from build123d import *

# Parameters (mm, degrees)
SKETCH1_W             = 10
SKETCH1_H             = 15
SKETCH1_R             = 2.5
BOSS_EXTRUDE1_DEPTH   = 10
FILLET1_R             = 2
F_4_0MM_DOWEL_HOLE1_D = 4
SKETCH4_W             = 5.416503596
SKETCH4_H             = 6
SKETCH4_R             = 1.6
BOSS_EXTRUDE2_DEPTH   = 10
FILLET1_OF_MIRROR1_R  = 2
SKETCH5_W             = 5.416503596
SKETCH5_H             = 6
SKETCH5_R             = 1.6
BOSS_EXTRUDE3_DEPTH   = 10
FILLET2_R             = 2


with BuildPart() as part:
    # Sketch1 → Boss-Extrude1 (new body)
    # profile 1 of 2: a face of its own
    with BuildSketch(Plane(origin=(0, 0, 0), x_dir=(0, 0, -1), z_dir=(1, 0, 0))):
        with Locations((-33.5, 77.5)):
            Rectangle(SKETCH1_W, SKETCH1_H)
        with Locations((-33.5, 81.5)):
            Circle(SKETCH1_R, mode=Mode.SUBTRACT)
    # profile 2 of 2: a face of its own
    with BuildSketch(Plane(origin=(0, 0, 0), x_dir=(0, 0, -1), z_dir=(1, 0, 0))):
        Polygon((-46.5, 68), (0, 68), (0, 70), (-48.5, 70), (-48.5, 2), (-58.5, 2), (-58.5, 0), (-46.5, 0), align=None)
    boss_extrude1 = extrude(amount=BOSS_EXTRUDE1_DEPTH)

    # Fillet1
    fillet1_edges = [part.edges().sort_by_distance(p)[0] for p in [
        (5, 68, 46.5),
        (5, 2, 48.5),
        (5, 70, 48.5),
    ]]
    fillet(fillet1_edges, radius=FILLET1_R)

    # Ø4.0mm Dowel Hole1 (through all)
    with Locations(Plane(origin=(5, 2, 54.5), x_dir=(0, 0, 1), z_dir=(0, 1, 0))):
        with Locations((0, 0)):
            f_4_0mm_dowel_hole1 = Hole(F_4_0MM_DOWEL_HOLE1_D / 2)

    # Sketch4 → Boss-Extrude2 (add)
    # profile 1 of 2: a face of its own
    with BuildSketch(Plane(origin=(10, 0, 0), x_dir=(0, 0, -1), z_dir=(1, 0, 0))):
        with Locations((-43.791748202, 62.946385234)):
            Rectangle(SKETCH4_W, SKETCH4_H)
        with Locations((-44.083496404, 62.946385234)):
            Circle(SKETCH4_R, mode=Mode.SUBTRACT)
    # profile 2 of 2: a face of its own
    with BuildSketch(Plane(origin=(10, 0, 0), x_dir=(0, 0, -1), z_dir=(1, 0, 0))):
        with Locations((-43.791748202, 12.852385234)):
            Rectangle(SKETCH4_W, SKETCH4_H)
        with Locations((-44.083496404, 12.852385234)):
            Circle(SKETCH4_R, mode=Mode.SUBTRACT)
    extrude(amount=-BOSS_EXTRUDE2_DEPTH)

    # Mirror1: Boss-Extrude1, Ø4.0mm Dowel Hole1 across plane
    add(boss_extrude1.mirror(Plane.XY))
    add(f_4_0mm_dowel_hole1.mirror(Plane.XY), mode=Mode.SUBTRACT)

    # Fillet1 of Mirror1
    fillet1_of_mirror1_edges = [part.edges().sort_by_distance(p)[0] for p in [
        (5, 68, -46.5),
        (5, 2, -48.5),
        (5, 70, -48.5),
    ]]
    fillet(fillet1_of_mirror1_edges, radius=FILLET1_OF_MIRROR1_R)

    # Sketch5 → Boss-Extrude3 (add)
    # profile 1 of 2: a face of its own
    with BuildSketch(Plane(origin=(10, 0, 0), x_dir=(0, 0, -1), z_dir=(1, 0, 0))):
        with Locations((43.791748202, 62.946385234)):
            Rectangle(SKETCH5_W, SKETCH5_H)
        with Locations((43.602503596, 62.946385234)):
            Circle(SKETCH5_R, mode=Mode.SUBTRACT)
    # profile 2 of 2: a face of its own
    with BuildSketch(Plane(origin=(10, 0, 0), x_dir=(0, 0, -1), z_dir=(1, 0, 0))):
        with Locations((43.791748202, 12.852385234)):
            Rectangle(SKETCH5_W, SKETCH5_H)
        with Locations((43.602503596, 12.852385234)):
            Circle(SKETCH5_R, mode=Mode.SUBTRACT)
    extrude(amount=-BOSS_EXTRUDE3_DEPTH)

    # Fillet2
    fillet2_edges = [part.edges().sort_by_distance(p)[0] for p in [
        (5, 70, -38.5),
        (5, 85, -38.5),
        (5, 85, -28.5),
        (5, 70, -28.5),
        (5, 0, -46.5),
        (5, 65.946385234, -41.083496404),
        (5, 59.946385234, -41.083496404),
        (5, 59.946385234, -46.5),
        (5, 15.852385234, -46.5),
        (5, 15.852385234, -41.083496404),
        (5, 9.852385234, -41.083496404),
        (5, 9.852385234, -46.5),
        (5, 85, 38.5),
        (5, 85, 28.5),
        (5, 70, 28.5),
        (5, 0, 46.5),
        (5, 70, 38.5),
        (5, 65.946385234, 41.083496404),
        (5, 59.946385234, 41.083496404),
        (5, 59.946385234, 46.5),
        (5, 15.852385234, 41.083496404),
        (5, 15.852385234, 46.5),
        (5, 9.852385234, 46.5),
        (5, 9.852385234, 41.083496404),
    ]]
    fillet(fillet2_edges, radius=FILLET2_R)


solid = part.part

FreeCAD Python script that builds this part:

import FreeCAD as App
import Part
import Sketcher
Q = App.Units.Quantity


def edges_at(feature, points):
    """Names of the edges that pass closest to the given points."""
    edges = feature.Shape.Edges
    near = lambda p: min(range(len(edges)), key=lambda i: edges[i].distToShape(Part.Vertex(*p))[0])
    return sorted({f"Edge{near(p) + 1}" for p in points})

doc = App.newDocument("Part")
body = doc.addObject("PartDesign::Body", "Body")

# Sketch on YZ plane
sketch1 = body.newObject("Sketcher::SketchObject", "Sketch")
sketch1.AttachmentSupport = (doc.getObject("YZ_Plane"), [""])
sketch1.MapMode = "FlatFace"
sketch1.addGeometry([
    Part.LineSegment(App.Vector(85, 38.5, 0), App.Vector(70, 38.5, 0)),  # 0
    Part.LineSegment(App.Vector(70, 38.5, 0), App.Vector(70, 48.5, 0)),  # 1
    Part.LineSegment(App.Vector(70, 48.5, 0), App.Vector(2, 48.5, 0)),  # 2
    Part.LineSegment(App.Vector(2, 48.5, 0), App.Vector(2, 58.5, 0)),  # 3
    Part.LineSegment(App.Vector(2, 58.5, 0), App.Vector(0, 58.5, 0)),  # 4
    Part.LineSegment(App.Vector(0, 58.5, 0), App.Vector(0, 46.5, 0)),  # 5
    Part.LineSegment(App.Vector(0, 46.5, 0), App.Vector(68, 46.5, 0)),  # 6
    Part.LineSegment(App.Vector(68, 46.5, 0), App.Vector(68, 0, 0)),  # 7
    Part.LineSegment(App.Vector(68, 0, 0), App.Vector(70, 0, 0)),  # 8
    Part.LineSegment(App.Vector(70, 0, 0), App.Vector(70, 28.5, 0)),  # 9
    Part.LineSegment(App.Vector(70, 28.5, 0), App.Vector(85, 28.5, 0)),  # 10
    Part.LineSegment(App.Vector(85, 28.5, 0), App.Vector(85, 38.5, 0)),  # 11
    Part.Circle(App.Vector(81.5, 33.5, 0), App.Vector(0, 0, 1), 2.5),  # 12
], False)
sketch1.addConstraint([
    Sketcher.Constraint("Coincident", 0, 2, 1, 1),
    Sketcher.Constraint("Coincident", 1, 2, 2, 1),
    Sketcher.Constraint("Coincident", 2, 2, 3, 1),
    Sketcher.Constraint("Coincident", 3, 2, 4, 1),
    Sketcher.Constraint("Coincident", 4, 2, 5, 1),
    Sketcher.Constraint("Coincident", 5, 2, 6, 1),
    Sketcher.Constraint("Coincident", 6, 2, 7, 1),
    Sketcher.Constraint("Coincident", 7, 2, 8, 1),
    Sketcher.Constraint("Coincident", 8, 2, 9, 1),
    Sketcher.Constraint("Coincident", 9, 2, 10, 1),
    Sketcher.Constraint("Coincident", 10, 2, 11, 1),
    Sketcher.Constraint("Coincident", 11, 2, 0, 1),
    Sketcher.Constraint("Horizontal", 0),
    Sketcher.Constraint("Vertical", 1),
    Sketcher.Constraint("Horizontal", 2),
    Sketcher.Constraint("Vertical", 3),
    Sketcher.Constraint("Horizontal", 4),
    Sketcher.Constraint("Vertical", 5),
    Sketcher.Constraint("Horizontal", 6),
    Sketcher.Constraint("Vertical", 7),
    Sketcher.Constraint("Horizontal", 8),
    Sketcher.Constraint("Vertical", 9),
    Sketcher.Constraint("Horizontal", 10),
    Sketcher.Constraint("Vertical", 11),
    Sketcher.Constraint("PointOnObject", 4, 2, -2),
    Sketcher.Constraint("PointOnObject", 7, 2, -1),
    Sketcher.Constraint("Vertical", 1, 2, 8, 2),
    Sketcher.Constraint("Equal", 2, 6),
    Sketcher.Constraint("Equal", 1, 3),
    Sketcher.Constraint("Equal", 3, 11),
    Sketcher.Constraint("Diameter", 12, Q("5 mm")),
    Sketcher.Constraint("DistanceX", 0, 2, 0, 1, Q("15 mm")),
    Sketcher.Constraint("DistanceX", 2, 2, 2, 1, Q("68 mm")),
    Sketcher.Constraint("DistanceX", 4, 2, 4, 1, Q("2 mm")),
    Sketcher.Constraint("DistanceY", 1, 1, 1, 2, Q("10 mm")),
    Sketcher.Constraint("DistanceY", 5, 2, 5, 1, Q("12 mm")),
    Sketcher.Constraint("DistanceY", 7, 2, 7, 1, Q("46.5 mm")),
    Sketcher.Constraint("DistanceY", 12, 3, 0, 2, Q("5 mm")),
    Sketcher.Constraint("DistanceX", -1, 1, 12, 3, Q("81.5 mm")),
])
pad1 = body.newObject("PartDesign::Pad", "Pad")
pad1.Profile = sketch1
pad1.Length = 10
doc.recompute()

fillet = body.newObject("PartDesign::Fillet", "Fillet")
fillet.Base = (pad1, edges_at(pad1, [(5, 68, 46.5), (5, 2, 48.5), (5, 70, 48.5)]))
fillet.Radius = 2

# Sketch on XZ plane
sketch2 = body.newObject("Sketcher::SketchObject", "Sketch001")
sketch2.AttachmentSupport = (doc.getObject("XZ_Plane"), [""])
sketch2.MapMode = "FlatFace"
sketch2.AttachmentOffset = App.Placement(App.Vector(0, 0, -2), App.Rotation())
sketch2.addGeometry(Part.Circle(App.Vector(5, 54.5, 0), App.Vector(0, 0, 1), 2), False)
sketch2.addConstraint([
    Sketcher.Constraint("Diameter", 0, Q("4 mm")),
    Sketcher.Constraint("DistanceX", -1, 1, 0, 3, Q("5 mm")),
    Sketcher.Constraint("DistanceY", -1, 1, 0, 3, Q("54.5 mm")),
])
doc.recompute()
hole = body.newObject("PartDesign::Hole", "Hole")
hole.Profile = sketch2
hole.ThreadType = "None"
hole.Diameter = 4
hole.DepthType = "ThroughAll"
hole.Reversed = True

# Sketch on YZ plane
sketch3 = body.newObject("Sketcher::SketchObject", "Sketch002")
sketch3.AttachmentSupport = (doc.getObject("YZ_Plane"), [""])
sketch3.MapMode = "FlatFace"
sketch3.AttachmentOffset = App.Placement(App.Vector(0, 0, 10), App.Rotation())
sketch3.addGeometry([
    Part.LineSegment(App.Vector(65.9, 46.5, 0), App.Vector(59.9, 46.5, 0)),  # 0
    Part.LineSegment(App.Vector(59.9, 46.5, 0), App.Vector(59.9, 41.1, 0)),  # 1
    Part.LineSegment(App.Vector(59.9, 41.1, 0), App.Vector(65.9, 41.1, 0)),  # 2
    Part.LineSegment(App.Vector(65.9, 41.1, 0), App.Vector(65.9, 46.5, 0)),  # 3
    Part.Circle(App.Vector(62.9, 44.1, 0), App.Vector(0, 0, 1), 1.6),  # 4
    Part.LineSegment(App.Vector(15.9, 46.5, 0), App.Vector(9.9, 46.5, 0)),  # 5
    Part.LineSegment(App.Vector(9.9, 46.5, 0), App.Vector(9.9, 41.1, 0)),  # 6
    Part.LineSegment(App.Vector(9.9, 41.1, 0), App.Vector(15.9, 41.1, 0)),  # 7
    Part.LineSegment(App.Vector(15.9, 41.1, 0), App.Vector(15.9, 46.5, 0)),  # 8
    Part.Circle(App.Vector(12.9, 44.1, 0), App.Vector(0, 0, 1), 1.6),  # 9
], False)
sketch3.addConstraint([
    Sketcher.Constraint("Coincident", 0, 2, 1, 1),
    Sketcher.Constraint("Coincident", 1, 2, 2, 1),
    Sketcher.Constraint("Coincident", 2, 2, 3, 1),
    Sketcher.Constraint("Coincident", 3, 2, 0, 1),
    Sketcher.Constraint("Coincident", 5, 2, 6, 1),
    Sketcher.Constraint("Coincident", 6, 2, 7, 1),
    Sketcher.Constraint("Coincident", 7, 2, 8, 1),
    Sketcher.Constraint("Coincident", 8, 2, 5, 1),
    Sketcher.Constraint("Horizontal", 0),
    Sketcher.Constraint("Vertical", 1),
    Sketcher.Constraint("Horizontal", 2),
    Sketcher.Constraint("Vertical", 3),
    Sketcher.Constraint("Horizontal", 5),
    Sketcher.Constraint("Vertical", 6),
    Sketcher.Constraint("Horizontal", 7),
    Sketcher.Constraint("Vertical", 8),
    Sketcher.Constraint("Equal", 4, 9),
    Sketcher.Constraint("Horizontal", 4, 3, 9, 3),
    Sketcher.Constraint("Horizontal", 3, 2, 5, 2),
    Sketcher.Constraint("Horizontal", 2, 2, 6, 2),
    Sketcher.Constraint("Equal", 2, 5),
    Sketcher.Constraint("Diameter", 4, Q("3.2 mm")),
    Sketcher.Constraint("DistanceX", 0, 2, 0, 1, Q("6 mm")),
    Sketcher.Constraint("DistanceX", 0, 2, 4, 3, Q("3 mm")),
    Sketcher.Constraint("DistanceY", 1, 2, 4, 3, Q("3 mm")),
    Sketcher.Constraint("DistanceX", 5, 2, 9, 3, Q("3 mm")),
    Sketcher.Constraint("DistanceY", -1, 1, 0, 2, Q("46.5 mm")),
    Sketcher.Constraint("DistanceX", 9, 3, 4, 3, Q("50.094 mm")),
    Sketcher.Constraint("DistanceY", 1, 2, 1, 1, Q("5.416504 mm")),
    Sketcher.Constraint("DistanceX", -1, 1, 4, 3, Q("62.946385 mm")),
])
pad2 = body.newObject("PartDesign::Pad", "Pad001")
pad2.Profile = sketch3
pad2.Length = 10
pad2.Reversed = True
doc.recompute()

mirrored = body.newObject("PartDesign::Mirrored", "Mirrored")
mirrored.Originals = [pad1, hole]
mirrored.MirrorPlane = (doc.getObject("XY_Plane"), [""])
body.Tip = mirrored
doc.recompute()

fillet2 = body.newObject("PartDesign::Fillet", "Fillet001")
fillet2.Base = (mirrored, edges_at(mirrored, [(5, 68, -46.5), (5, 2, -48.5), (5, 70, -48.5)]))
fillet2.Radius = 2

# Sketch on YZ plane
sketch4 = body.newObject("Sketcher::SketchObject", "Sketch003")
sketch4.AttachmentSupport = (doc.getObject("YZ_Plane"), [""])
sketch4.MapMode = "FlatFace"
sketch4.AttachmentOffset = App.Placement(App.Vector(0, 0, 10), App.Rotation())
sketch4.addGeometry([
    Part.LineSegment(App.Vector(65.9, -41.1, 0), App.Vector(59.9, -41.1, 0)),  # 0
    Part.LineSegment(App.Vector(59.9, -41.1, 0), App.Vector(59.9, -46.5, 0)),  # 1
    Part.LineSegment(App.Vector(59.9, -46.5, 0), App.Vector(65.9, -46.5, 0)),  # 2
    Part.LineSegment(App.Vector(65.9, -46.5, 0), App.Vector(65.9, -41.1, 0)),  # 3
    Part.Circle(App.Vector(62.9, -43.6, 0), App.Vector(0, 0, 1), 1.6),  # 4
    Part.LineSegment(App.Vector(15.9, -41.1, 0), App.Vector(9.9, -41.1, 0)),  # 5
    Part.LineSegment(App.Vector(9.9, -41.1, 0), App.Vector(9.9, -46.5, 0)),  # 6
    Part.LineSegment(App.Vector(9.9, -46.5, 0), App.Vector(15.9, -46.5, 0)),  # 7
    Part.LineSegment(App.Vector(15.9, -46.5, 0), App.Vector(15.9, -41.1, 0)),  # 8
    Part.Circle(App.Vector(12.9, -43.6, 0), App.Vector(0, 0, 1), 1.6),  # 9
], False)
sketch4.addConstraint([
    Sketcher.Constraint("Coincident", 0, 2, 1, 1),
    Sketcher.Constraint("Coincident", 1, 2, 2, 1),
    Sketcher.Constraint("Coincident", 2, 2, 3, 1),
    Sketcher.Constraint("Coincident", 3, 2, 0, 1),
    Sketcher.Constraint("Coincident", 5, 2, 6, 1),
    Sketcher.Constraint("Coincident", 6, 2, 7, 1),
    Sketcher.Constraint("Coincident", 7, 2, 8, 1),
    Sketcher.Constraint("Coincident", 8, 2, 5, 1),
    Sketcher.Constraint("Horizontal", 0),
    Sketcher.Constraint("Vertical", 1),
    Sketcher.Constraint("Horizontal", 2),
    Sketcher.Constraint("Vertical", 3),
    Sketcher.Constraint("Horizontal", 5),
    Sketcher.Constraint("Vertical", 6),
    Sketcher.Constraint("Horizontal", 7),
    Sketcher.Constraint("Vertical", 8),
    Sketcher.Constraint("Equal", 4, 9),
    Sketcher.Constraint("Horizontal", 4, 3, 9, 3),
    Sketcher.Constraint("Horizontal", 3, 2, 5, 2),
    Sketcher.Constraint("Horizontal", 2, 2, 6, 2),
    Sketcher.Constraint("Equal", 2, 5),
    Sketcher.Constraint("Diameter", 4, Q("3.2 mm")),
    Sketcher.Constraint("DistanceX", 0, 2, 0, 1, Q("6 mm")),
    Sketcher.Constraint("DistanceX", 0, 2, 4, 3, Q("3 mm")),
    Sketcher.Constraint("DistanceX", 5, 2, 9, 3, Q("3 mm")),
    Sketcher.Constraint("DistanceY", 1, 2, -1, 1, Q("46.5 mm")),
    Sketcher.Constraint("DistanceX", 9, 3, 4, 3, Q("50.094 mm")),
    Sketcher.Constraint("DistanceY", 1, 2, 1, 1, Q("5.416504 mm")),
    Sketcher.Constraint("DistanceX", -1, 1, 4, 3, Q("62.946385 mm")),
    Sketcher.Constraint("DistanceY", 4, 3, -1, 1, Q("43.602504 mm")),
])
pad3 = body.newObject("PartDesign::Pad", "Pad002")
pad3.Profile = sketch4
pad3.Length = 10
pad3.Reversed = True
doc.recompute()

fillet3 = body.newObject("PartDesign::Fillet", "Fillet002")
fillet3.Base = (pad3, edges_at(pad3, [
    (5, 70, -38.5),
    (5, 85, -38.5),
    (5, 85, -28.5),
    (5, 70, -28.5),
    (5, 0, -46.5),
    (5, 65.946, -41.083),
    (5, 59.946, -41.083),
    (5, 59.946, -46.5),
    (5, 15.852, -46.5),
    (5, 15.852, -41.083),
    (5, 9.852, -41.083),
    (5, 9.852, -46.5),
    (5, 85, 38.5),
    (5, 85, 28.5),
    (5, 70, 28.5),
    (5, 0, 46.5),
    (5, 70, 38.5),
    (5, 65.946, 41.083),
    (5, 59.946, 41.083),
    (5, 59.946, 46.5),
    (5, 15.852, 41.083),
    (5, 15.852, 46.5),
    (5, 9.852, 46.5),
    (5, 9.852, 41.083),
]))
fillet3.Radius = 2

doc.recompute()
